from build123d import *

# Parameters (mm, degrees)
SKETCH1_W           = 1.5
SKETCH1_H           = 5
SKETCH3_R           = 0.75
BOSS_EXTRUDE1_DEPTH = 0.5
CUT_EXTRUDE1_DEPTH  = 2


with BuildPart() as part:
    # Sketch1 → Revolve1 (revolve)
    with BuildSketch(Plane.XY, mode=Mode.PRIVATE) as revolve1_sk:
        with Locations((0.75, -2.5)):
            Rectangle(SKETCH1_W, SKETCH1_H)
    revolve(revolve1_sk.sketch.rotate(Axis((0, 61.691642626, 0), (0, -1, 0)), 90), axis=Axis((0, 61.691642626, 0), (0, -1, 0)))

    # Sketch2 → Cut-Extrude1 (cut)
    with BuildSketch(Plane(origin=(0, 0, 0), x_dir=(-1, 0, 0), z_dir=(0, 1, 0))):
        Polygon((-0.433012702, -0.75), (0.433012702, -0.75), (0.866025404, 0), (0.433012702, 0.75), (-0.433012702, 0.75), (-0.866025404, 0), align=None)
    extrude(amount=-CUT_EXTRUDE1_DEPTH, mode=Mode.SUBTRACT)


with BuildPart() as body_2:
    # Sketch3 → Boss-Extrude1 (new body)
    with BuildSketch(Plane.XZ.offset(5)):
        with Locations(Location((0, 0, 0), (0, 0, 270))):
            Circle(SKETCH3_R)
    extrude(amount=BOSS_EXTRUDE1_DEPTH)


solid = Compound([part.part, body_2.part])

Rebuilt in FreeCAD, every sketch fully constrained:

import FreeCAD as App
import Part
import Sketcher
Q = App.Units.Quantity

doc = App.newDocument("Part")
body = doc.addObject("PartDesign::Body", "Body")

sketch1 = body.newObject("Sketcher::SketchObject", "Sketch")
sketch1.AttachmentSupport = (doc.getObject("XY_Plane"), [""])
sketch1.MapMode = "FlatFace"
sketch1.addGeometry([
    Part.LineSegment(App.Vector(0, 0, 0), App.Vector(0, -5, 0)),
    Part.LineSegment(App.Vector(0, -5, 0), App.Vector(1.5, -5, 0)),
    Part.LineSegment(App.Vector(1.5, -5, 0), App.Vector(1.5, 0, 0)),
    Part.LineSegment(App.Vector(1.5, 0, 0), App.Vector(0, 0, 0)),
], False)
sketch1.addConstraint([
    Sketcher.Constraint("Coincident", 0, 2, 1, 1),
    Sketcher.Constraint("Coincident", 1, 2, 2, 1),
    Sketcher.Constraint("Coincident", 2, 2, 3, 1),
    Sketcher.Constraint("Coincident", 3, 2, 0, 1),
    Sketcher.Constraint("Vertical", 0),
    Sketcher.Constraint("Horizontal", 1),
    Sketcher.Constraint("Vertical", 2),
    Sketcher.Constraint("Horizontal", 3),
    Sketcher.Constraint("Coincident", 3, 2, -1, 1),
    Sketcher.Constraint("DistanceY", 0, 2, 0, 1, 5.0),
    Sketcher.Constraint("DistanceX", 1, 1, 1, 2, 1.5),
])
revolution = body.newObject("PartDesign::Revolution", "Revolution")
revolution.Profile = sketch1
revolution.ReferenceAxis = (sketch1, ["V_Axis"])
revolution.Angle = 360

sketch2 = body.newObject("Sketcher::SketchObject", "Sketch001")
sketch2.AttachmentSupport = (doc.getObject("XZ_Plane"), [""])
sketch2.MapMode = "FlatFace"
sketch2.addGeometry([
    Part.LineSegment(App.Vector(0.433013, -0.75, 0), App.Vector(-0.433013, -0.75, 0)),
    Part.LineSegment(App.Vector(-0.433013, -0.75, 0), App.Vector(-0.866025, 0, 0)),
    Part.LineSegment(App.Vector(-0.866025, 0, 0), App.Vector(-0.433013, 0.75, 0)),
    Part.LineSegment(App.Vector(-0.433013, 0.75, 0), App.Vector(0.433013, 0.75, 0)),
    Part.LineSegment(App.Vector(0.433013, 0.75, 0), App.Vector(0.866025, 0, 0)),
    Part.LineSegment(App.Vector(0.866025, 0, 0), App.Vector(0.433013, -0.75, 0)),
], False)
sketch2.addConstraint([
    Sketcher.Constraint("Coincident", 0, 2, 1, 1),
    Sketcher.Constraint("Coincident", 1, 2, 2, 1),
    Sketcher.Constraint("Coincident", 2, 2, 3, 1),
    Sketcher.Constraint("Coincident", 3, 2, 4, 1),
    Sketcher.Constraint("Coincident", 4, 2, 5, 1),
    Sketcher.Constraint("Coincident", 5, 2, 0, 1),
    Sketcher.Constraint("Horizontal", 0),
    Sketcher.Constraint("Horizontal", 3),
    Sketcher.Constraint("Symmetric", 0, 2, 3, 2, -1, 1),
    Sketcher.Constraint("Symmetric", 1, 2, 4, 2, -1, 1),
    Sketcher.Constraint("PointOnObject", 1, 2, -1),
    Sketcher.Constraint("Parallel", 2, 5),
    Sketcher.Constraint("Vertical", 0, 2, 2, 2),
    Sketcher.Constraint("Angle", 1, Q("120 deg")),
    Sketcher.Constraint("DistanceY", 0, 2, 2, 2, 1.5),
    Sketcher.Constraint("DistanceX", 0, 2, 0, 1, 0.866025),
])
pocket1 = body.newObject("PartDesign::Pocket", "Pocket")
pocket1.Profile = sketch2
pocket1.Length = 2
pocket1.Reversed = True
body2 = doc.addObject("PartDesign::Body", "Body001")

sketch3 = body2.newObject("Sketcher::SketchObject", "Sketch002")
sketch3.AttachmentSupport = (doc.getObject("XZ_Plane001"), [""])
sketch3.MapMode = "FlatFace"
sketch3.AttachmentOffset = App.Placement(App.Vector(0, 0, 5), App.Rotation())
sketch3.addGeometry(Part.Circle(App.Vector(0, 0, 0), App.Vector(0, 0, 1), 0.75), False)
sketch3.addConstraint([
    Sketcher.Constraint("Coincident", 0, 3, -1, 1),
    Sketcher.Constraint("Diameter", 0, 1.5),
])
pad1 = body2.newObject("PartDesign::Pad", "Pad")
pad1.Profile = sketch3
pad1.Length = 0.5

doc.recompute()
